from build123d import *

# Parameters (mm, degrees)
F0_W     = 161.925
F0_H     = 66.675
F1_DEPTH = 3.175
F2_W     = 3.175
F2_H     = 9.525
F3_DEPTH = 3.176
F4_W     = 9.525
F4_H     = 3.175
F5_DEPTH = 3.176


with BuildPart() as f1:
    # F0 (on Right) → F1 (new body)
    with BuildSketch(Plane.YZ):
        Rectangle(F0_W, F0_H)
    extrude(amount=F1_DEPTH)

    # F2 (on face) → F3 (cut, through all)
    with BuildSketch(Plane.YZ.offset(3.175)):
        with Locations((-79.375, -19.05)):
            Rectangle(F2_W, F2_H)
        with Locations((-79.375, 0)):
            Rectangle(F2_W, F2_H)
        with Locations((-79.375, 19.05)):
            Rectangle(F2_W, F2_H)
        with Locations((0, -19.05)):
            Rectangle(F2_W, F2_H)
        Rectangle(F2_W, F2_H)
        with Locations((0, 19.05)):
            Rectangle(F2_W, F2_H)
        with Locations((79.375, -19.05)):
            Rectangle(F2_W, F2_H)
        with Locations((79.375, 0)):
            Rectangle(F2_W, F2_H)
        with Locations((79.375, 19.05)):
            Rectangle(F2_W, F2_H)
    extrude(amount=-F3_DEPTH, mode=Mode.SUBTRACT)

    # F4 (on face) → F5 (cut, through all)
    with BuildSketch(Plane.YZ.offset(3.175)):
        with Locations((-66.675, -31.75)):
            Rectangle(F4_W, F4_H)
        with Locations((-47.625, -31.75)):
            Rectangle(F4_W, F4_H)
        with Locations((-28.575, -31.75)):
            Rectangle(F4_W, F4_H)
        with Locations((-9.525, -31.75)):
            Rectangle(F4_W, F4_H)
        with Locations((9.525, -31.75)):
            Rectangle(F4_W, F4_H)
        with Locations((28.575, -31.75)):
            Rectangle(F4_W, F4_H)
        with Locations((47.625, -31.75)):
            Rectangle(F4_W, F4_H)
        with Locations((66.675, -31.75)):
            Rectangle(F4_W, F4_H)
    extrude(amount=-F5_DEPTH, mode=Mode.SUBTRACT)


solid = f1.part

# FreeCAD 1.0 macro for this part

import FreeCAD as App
import Part
import Sketcher

V = App.Vector
Q = App.Units.Quantity

doc = App.newDocument("Part")
body = doc.addObject("PartDesign::Body", "Body")

# Sketch on YZ plane
sketch1 = body.newObject("Sketcher::SketchObject", "Sketch")
sketch1.AttachmentSupport = (doc.getObject("YZ_Plane"), [""])
sketch1.MapMode = "FlatFace"
sketch1.addGeometry([
    Part.LineSegment(V(-81, 33, 0), V(-81, -33, 0)),
    Part.LineSegment(V(-81, -33, 0), V(81, -33, 0)),
    Part.LineSegment(V(81, -33, 0), V(81, 33, 0)),
    Part.LineSegment(V(81, 33, 0), V(-81, 33, 0)),
], False)
sketch1.addConstraint([
    Sketcher.Constraint("Coincident", 0, 2, 1, 1),
    Sketcher.Constraint("Coincident", 1, 2, 2, 1),
    Sketcher.Constraint("Coincident", 2, 2, 3, 1),
    Sketcher.Constraint("Coincident", 3, 2, 0, 1),
    Sketcher.Constraint("Vertical", 0),
    Sketcher.Constraint("Horizontal", 1),
    Sketcher.Constraint("Vertical", 2),
    Sketcher.Constraint("Horizontal", 3),
    Sketcher.Constraint("Symmetric", 0, 2, 2, 2, -1, 1),
    Sketcher.Constraint("DistanceX", 1, 1, 1, 2, Q("6.375 in")),
    Sketcher.Constraint("DistanceY", 0, 2, 0, 1, Q("2.625 in")),
])
pad1 = body.newObject("PartDesign::Pad", "Pad")
pad1.Profile = sketch1
pad1.Length = Q("0.125 in")

# Sketch on YZ plane
sketch2 = body.newObject("Sketcher::SketchObject", "Sketch001")
sketch2.AttachmentSupport = (doc.getObject("YZ_Plane"), [""])
sketch2.MapMode = "FlatFace"
sketch2.AttachmentOffset = App.Placement(V(0, 0, 0.125 * 25.4), App.Rotation())
sketch2.addGeometry([
    Part.LineSegment(V(-81, -14.3, 0), V(-81, -23.8, 0)),  # 0
    Part.LineSegment(V(-81, -23.8, 0), V(-77.8, -23.8, 0)),  # 1
    Part.LineSegment(V(-77.8, -23.8, 0), V(-77.8, -14.3, 0)),  # 2
    Part.LineSegment(V(-77.8, -14.3, 0), V(-81, -14.3, 0)),  # 3
    Part.LineSegment(V(-81, 4.8, 0), V(-81, -4.8, 0)),  # 4
    Part.LineSegment(V(-81, -4.8, 0), V(-77.8, -4.8, 0)),  # 5
    Part.LineSegment(V(-77.8, -4.8, 0), V(-77.8, 4.8, 0)),  # 6
    Part.LineSegment(V(-77.8, 4.8, 0), V(-81, 4.8, 0)),  # 7
    Part.LineSegment(V(-81, 23.8, 0), V(-81, 14.3, 0)),  # 8
    Part.LineSegment(V(-81, 14.3, 0), V(-77.8, 14.3, 0)),  # 9
    Part.LineSegment(V(-77.8, 14.3, 0), V(-77.8, 23.8, 0)),  # 10
    Part.LineSegment(V(-77.8, 23.8, 0), V(-81, 23.8, 0)),  # 11
    Part.LineSegment(V(-1.6, -14.3, 0), V(-1.6, -23.8, 0)),  # 12
    Part.LineSegment(V(-1.6, -23.8, 0), V(1.6, -23.8, 0)),  # 13
    Part.LineSegment(V(1.6, -23.8, 0), V(1.6, -14.3, 0)),  # 14
    Part.LineSegment(V(1.6, -14.3, 0), V(-1.6, -14.3, 0)),  # 15
    Part.LineSegment(V(-1.6, 4.8, 0), V(-1.6, -4.8, 0)),  # 16
    Part.LineSegment(V(-1.6, -4.8, 0), V(1.6, -4.8, 0)),  # 17
    Part.LineSegment(V(1.6, -4.8, 0), V(1.6, 4.8, 0)),  # 18
    Part.LineSegment(V(1.6, 4.8, 0), V(-1.6, 4.8, 0)),  # 19
    Part.LineSegment(V(-1.6, 23.8, 0), V(-1.6, 14.3, 0)),  # 20
    Part.LineSegment(V(-1.6, 14.3, 0), V(1.6, 14.3, 0)),  # 21
    Part.LineSegment(V(1.6, 14.3, 0), V(1.6, 23.8, 0)),  # 22
    Part.LineSegment(V(1.6, 23.8, 0), V(-1.6, 23.8, 0)),  # 23
    Part.LineSegment(V(77.8, -14.3, 0), V(77.8, -23.8, 0)),  # 24
    Part.LineSegment(V(77.8, -23.8, 0), V(81, -23.8, 0)),  # 25
    Part.LineSegment(V(81, -23.8, 0), V(81, -14.3, 0)),  # 26
    Part.LineSegment(V(81, -14.3, 0), V(77.8, -14.3, 0)),  # 27
    Part.LineSegment(V(77.8, 4.8, 0), V(77.8, -4.8, 0)),  # 28
    Part.LineSegment(V(77.8, -4.8, 0), V(81, -4.8, 0)),  # 29
    Part.LineSegment(V(81, -4.8, 0), V(81, 4.8, 0)),  # 30
    Part.LineSegment(V(81, 4.8, 0), V(77.8, 4.8, 0)),  # 31
    Part.LineSegment(V(77.8, 23.8, 0), V(77.8, 14.3, 0)),  # 32
    Part.LineSegment(V(77.8, 14.3, 0), V(81, 14.3, 0)),  # 33
    Part.LineSegment(V(81, 14.3, 0), V(81, 23.8, 0)),  # 34
    Part.LineSegment(V(81, 23.8, 0), V(77.8, 23.8, 0)),  # 35
], False)
sketch2.addConstraint([
    Sketcher.Constraint("Coincident", 0, 2, 1, 1),
    Sketcher.Constraint("Coincident", 1, 2, 2, 1),
    Sketcher.Constraint("Coincident", 2, 2, 3, 1),
    Sketcher.Constraint("Coincident", 3, 2, 0, 1),
    Sketcher.Constraint("Coincident", 4, 2, 5, 1),
    Sketcher.Constraint("Coincident", 5, 2, 6, 1),
    Sketcher.Constraint("Coincident", 6, 2, 7, 1),
    Sketcher.Constraint("Coincident", 7, 2, 4, 1),
    Sketcher.Constraint("Coincident", 8, 2, 9, 1),
    Sketcher.Constraint("Coincident", 9, 2, 10, 1),
    Sketcher.Constraint("Coincident", 10, 2, 11, 1),
    Sketcher.Constraint("Coincident", 11, 2, 8, 1),
    Sketcher.Constraint("Coincident", 12, 2, 13, 1),
    Sketcher.Constraint("Coincident", 13, 2, 14, 1),
    Sketcher.Constraint("Coincident", 14, 2, 15, 1),
    Sketcher.Constraint("Coincident", 15, 2, 12, 1),
    Sketcher.Constraint("Coincident", 16, 2, 17, 1),
    Sketcher.Constraint("Coincident", 17, 2, 18, 1),
    Sketcher.Constraint("Coincident", 18, 2, 19, 1),
    Sketcher.Constraint("Coincident", 19, 2, 16, 1),
    Sketcher.Constraint("Coincident", 20, 2, 21, 1),
    Sketcher.Constraint("Coincident", 21, 2, 22, 1),
    Sketcher.Constraint("Coincident", 22, 2, 23, 1),
    Sketcher.Constraint("Coincident", 23, 2, 20, 1),
    Sketcher.Constraint("Coincident", 24, 2, 25, 1),
    Sketcher.Constraint("Coincident", 25, 2, 26, 1),
    Sketcher.Constraint("Coincident", 26, 2, 27, 1),
    Sketcher.Constraint("Coincident", 27, 2, 24, 1),
    Sketcher.Constraint("Coincident", 28, 2, 29, 1),
    Sketcher.Constraint("Coincident", 29, 2, 30, 1),
    Sketcher.Constraint("Coincident", 30, 2, 31, 1),
    Sketcher.Constraint("Coincident", 31, 2, 28, 1),
    Sketcher.Constraint("Coincident", 32, 2, 33, 1),
    Sketcher.Constraint("Coincident", 33, 2, 34, 1),
    Sketcher.Constraint("Coincident", 34, 2, 35, 1),
    Sketcher.Constraint("Coincident", 35, 2, 32, 1),
    Sketcher.Constraint("Vertical", 0),
    Sketcher.Constraint("Horizontal", 1),
    Sketcher.Constraint("Vertical", 2),
    Sketcher.Constraint("Horizontal", 3),
    Sketcher.Constraint("Vertical", 4),
    Sketcher.Constraint("Horizontal", 5),
    Sketcher.Constraint("Vertical", 6),
    Sketcher.Constraint("Horizontal", 7),
    Sketcher.Constraint("Vertical", 8),
    Sketcher.Constraint("Horizontal", 9),
    Sketcher.Constraint("Vertical", 10),
    Sketcher.Constraint("Horizontal", 11),
    Sketcher.Constraint("Vertical", 12),
    Sketcher.Constraint("Horizontal", 13),
    Sketcher.Constraint("Vertical", 14),
    Sketcher.Constraint("Horizontal", 15),
    Sketcher.Constraint("Vertical", 16),
    Sketcher.Constraint("Horizontal", 17),
    Sketcher.Constraint("Vertical", 18),
    Sketcher.Constraint("Horizontal", 19),
    Sketcher.Constraint("Vertical", 20),
    Sketcher.Constraint("Horizontal", 21),
    Sketcher.Constraint("Vertical", 22),
    Sketcher.Constraint("Horizontal", 23),
    Sketcher.Constraint("Vertical", 24),
    Sketcher.Constraint("Horizontal", 25),
    Sketcher.Constraint("Vertical", 26),
    Sketcher.Constraint("Horizontal", 27),
    Sketcher.Constraint("Vertical", 28),
    Sketcher.Constraint("Horizontal", 29),
    Sketcher.Constraint("Vertical", 30),
    Sketcher.Constraint("Horizontal", 31),
    Sketcher.Constraint("Vertical", 32),
    Sketcher.Constraint("Horizontal", 33),
    Sketcher.Constraint("Vertical", 34),
    Sketcher.Constraint("Horizontal", 35),
    Sketcher.Constraint("Symmetric", 16, 2, 18, 2, -1, 1),
    Sketcher.Constraint("Symmetric", 14, 2, 20, 2, -1, 1),
    Sketcher.Constraint("Symmetric", 12, 2, 22, 2, -1, 1),
    Sketcher.Constraint("Symmetric", 10, 2, 24, 2, -1, 1),
    Sketcher.Constraint("Symmetric", 8, 2, 26, 2, -1, 1),
    Sketcher.Constraint("Symmetric", 6, 2, 28, 2, -1, 1),
    Sketcher.Constraint("Symmetric", 4, 2, 30, 2, -1, 1),
    Sketcher.Constraint("Symmetric", 2, 2, 32, 2, -1, 1),
    Sketcher.Constraint("Symmetric", 0, 2, 34, 2, -1, 1),
    Sketcher.Constraint("Symmetric", 1, 2, 24, 2, -2),
    Sketcher.Constraint("Symmetric", 3, 2, 26, 2, -2),
    Sketcher.Constraint("Horizontal", 1, 2, 12, 2),
    Sketcher.Constraint("Horizontal", 3, 2, 14, 2),
    Sketcher.Constraint("Horizontal", 5, 2, 16, 2),
    Sketcher.Constraint("Horizontal", 7, 2, 18, 2),
    Sketcher.Constraint("Vertical", 3, 2, 4, 2),
    Sketcher.Constraint("Vertical", 2, 2, 5, 2),
    Sketcher.Constraint("Vertical", 15, 2, 16, 2),
    Sketcher.Constraint("Vertical", 14, 2, 17, 2),
    Sketcher.Constraint("Equal", 11, 13),
    Sketcher.Constraint("Equal", 2, 4),
    Sketcher.Constraint("DistanceX", 1, 2, 12, 2, Q("3 in")),
    Sketcher.Constraint("DistanceX", 1, 1, 1, 2, Q("0.125 in")),
    Sketcher.Constraint("DistanceY", 0, 2, 0, 1, Q("0.375 in")),
    Sketcher.Constraint("DistanceY", 0, 2, 4, 2, Q("0.75 in")),
])
pocket1 = body.newObject("PartDesign::Pocket", "Pocket")
pocket1.Profile = sketch2
pocket1.Type = "ThroughAll"

# Sketch on YZ plane
sketch3 = body.newObject("Sketcher::SketchObject", "Sketch002")
sketch3.AttachmentSupport = (doc.getObject("YZ_Plane"), [""])
sketch3.MapMode = "FlatFace"
sketch3.AttachmentOffset = App.Placement(V(0, 0, 0.125 * 25.4), App.Rotation())
sketch3.addGeometry([
    Part.LineSegment(V(-71.4, -30.2, 0), V(-71.4, -33.3, 0)),  # 0
    Part.LineSegment(V(-71.4, -33.3, 0), V(-61.9, -33.3, 0)),  # 1
    Part.LineSegment(V(-61.9, -33.3, 0), V(-61.9, -30.2, 0)),  # 2
    Part.LineSegment(V(-61.9, -30.2, 0), V(-71.4, -30.2, 0)),  # 3
    Part.LineSegment(V(-52.4, -30.2, 0), V(-52.4, -33.3, 0)),  # 4
    Part.LineSegment(V(-52.4, -33.3, 0), V(-42.9, -33.3, 0)),  # 5
    Part.LineSegment(V(-42.9, -33.3, 0), V(-42.9, -30.2, 0)),  # 6
    Part.LineSegment(V(-42.9, -30.2, 0), V(-52.4, -30.2, 0)),  # 7
    Part.LineSegment(V(-33.3, -30.2, 0), V(-33.3, -33.3, 0)),  # 8
    Part.LineSegment(V(-33.3, -33.3, 0), V(-23.8, -33.3, 0)),  # 9
    Part.LineSegment(V(-23.8, -33.3, 0), V(-23.8, -30.2, 0)),  # 10
    Part.LineSegment(V(-23.8, -30.2, 0), V(-33.3, -30.2, 0)),  # 11
    Part.LineSegment(V(-14.3, -30.2, 0), V(-14.3, -33.3, 0)),  # 12
    Part.LineSegment(V(-14.3, -33.3, 0), V(-4.8, -33.3, 0)),  # 13
    Part.LineSegment(V(-4.8, -33.3, 0), V(-4.8, -30.2, 0)),  # 14
    Part.LineSegment(V(-4.8, -30.2, 0), V(-14.3, -30.2, 0)),  # 15
    Part.LineSegment(V(4.8, -30.2, 0), V(4.8, -33.3, 0)),  # 16
    Part.LineSegment(V(4.8, -33.3, 0), V(14.3, -33.3, 0)),  # 17
    Part.LineSegment(V(14.3, -33.3, 0), V(14.3, -30.2, 0)),  # 18
    Part.LineSegment(V(14.3, -30.2, 0), V(4.8, -30.2, 0)),  # 19
    Part.LineSegment(V(23.8, -30.2, 0), V(23.8, -33.3, 0)),  # 20
    Part.LineSegment(V(23.8, -33.3, 0), V(33.3, -33.3, 0)),  # 21
    Part.LineSegment(V(33.3, -33.3, 0), V(33.3, -30.2, 0)),  # 22
    Part.LineSegment(V(33.3, -30.2, 0), V(23.8, -30.2, 0)),  # 23
    Part.LineSegment(V(42.9, -30.2, 0), V(42.9, -33.3, 0)),  # 24
    Part.LineSegment(V(42.9, -33.3, 0), V(52.4, -33.3, 0)),  # 25
    Part.LineSegment(V(52.4, -33.3, 0), V(52.4, -30.2, 0)),  # 26
    Part.LineSegment(V(52.4, -30.2, 0), V(42.9, -30.2, 0)),  # 27
    Part.LineSegment(V(61.9, -30.2, 0), V(61.9, -33.3, 0)),  # 28
    Part.LineSegment(V(61.9, -33.3, 0), V(71.4, -33.3, 0)),  # 29
    Part.LineSegment(V(71.4, -33.3, 0), V(71.4, -30.2, 0)),  # 30
    Part.LineSegment(V(71.4, -30.2, 0), V(61.9, -30.2, 0)),  # 31
], False)
sketch3.addConstraint([
    Sketcher.Constraint("Coincident", 0, 2, 1, 1),
    Sketcher.Constraint("Coincident", 1, 2, 2, 1),
    Sketcher.Constraint("Coincident", 2, 2, 3, 1),
    Sketcher.Constraint("Coincident", 3, 2, 0, 1),
    Sketcher.Constraint("Coincident", 4, 2, 5, 1),
    Sketcher.Constraint("Coincident", 5, 2, 6, 1),
    Sketcher.Constraint("Coincident", 6, 2, 7, 1),
    Sketcher.Constraint("Coincident", 7, 2, 4, 1),
    Sketcher.Constraint("Coincident", 8, 2, 9, 1),
    Sketcher.Constraint("Coincident", 9, 2, 10, 1),
    Sketcher.Constraint("Coincident", 10, 2, 11, 1),
    Sketcher.Constraint("Coincident", 11, 2, 8, 1),
    Sketcher.Constraint("Coincident", 12, 2, 13, 1),
    Sketcher.Constraint("Coincident", 13, 2, 14, 1),
    Sketcher.Constraint("Coincident", 14, 2, 15, 1),
    Sketcher.Constraint("Coincident", 15, 2, 12, 1),
    Sketcher.Constraint("Coincident", 16, 2, 17, 1),
    Sketcher.Constraint("Coincident", 17, 2, 18, 1),
    Sketcher.Constraint("Coincident", 18, 2, 19, 1),
    Sketcher.Constraint("Coincident", 19, 2, 16, 1),
    Sketcher.Constraint("Coincident", 20, 2, 21, 1),
    Sketcher.Constraint("Coincident", 21, 2, 22, 1),
    Sketcher.Constraint("Coincident", 22, 2, 23, 1),
    Sketcher.Constraint("Coincident", 23, 2, 20, 1),
    Sketcher.Constraint("Coincident", 24, 2, 25, 1),
    Sketcher.Constraint("Coincident", 25, 2, 26, 1),
    Sketcher.Constraint("Coincident", 26, 2, 27, 1),
    Sketcher.Constraint("Coincident", 27, 2, 24, 1),
    Sketcher.Constraint("Coincident", 28, 2, 29, 1),
    Sketcher.Constraint("Coincident", 29, 2, 30, 1),
    Sketcher.Constraint("Coincident", 30, 2, 31, 1),
    Sketcher.Constraint("Coincident", 31, 2, 28, 1),
    Sketcher.Constraint("Vertical", 0),
    Sketcher.Constraint("Horizontal", 1),
    Sketcher.Constraint("Vertical", 2),
    Sketcher.Constraint("Horizontal", 3),
    Sketcher.Constraint("Vertical", 4),
    Sketcher.Constraint("Horizontal", 5),
    Sketcher.Constraint("Vertical", 6),
    Sketcher.Constraint("Horizontal", 7),
    Sketcher.Constraint("Vertical", 8),
    Sketcher.Constraint("Horizontal", 9),
    Sketcher.Constraint("Vertical", 10),
    Sketcher.Constraint("Horizontal", 11),
    Sketcher.Constraint("Vertical", 12),
    Sketcher.Constraint("Horizontal", 13),
    Sketcher.Constraint("Vertical", 14),
    Sketcher.Constraint("Horizontal", 15),
    Sketcher.Constraint("Vertical", 16),
    Sketcher.Constraint("Horizontal", 17),
    Sketcher.Constraint("Vertical", 18),
    Sketcher.Constraint("Horizontal", 19),
    Sketcher.Constraint("Vertical", 20),
    Sketcher.Constraint("Horizontal", 21),
    Sketcher.Constraint("Vertical", 22),
    Sketcher.Constraint("Horizontal", 23),
    Sketcher.Constraint("Vertical", 24),
    Sketcher.Constraint("Horizontal", 25),
    Sketcher.Constraint("Vertical", 26),
    Sketcher.Constraint("Horizontal", 27),
    Sketcher.Constraint("Vertical", 28),
    Sketcher.Constraint("Horizontal", 29),
    Sketcher.Constraint("Vertical", 30),
    Sketcher.Constraint("Horizontal", 31),
    Sketcher.Constraint("Symmetric", 13, 2, 16, 2, -2),
    Sketcher.Constraint("Symmetric", 15, 2, 18, 2, -2),
    Sketcher.Constraint("Symmetric", 9, 2, 20, 2, -2),
    Sketcher.Constraint("Symmetric", 11, 2, 22, 2, -2),
    Sketcher.Constraint("Symmetric", 5, 2, 24, 2, -2),
    Sketcher.Constraint("Symmetric", 7, 2, 26, 2, -2),
    Sketcher.Constraint("Symmetric", 1, 2, 28, 2, -2),
    Sketcher.Constraint("Symmetric", 3, 2, 30, 2, -2),
    Sketcher.Constraint("Horizontal", 1, 2, 4, 2),
    Sketcher.Constraint("Horizontal", 3, 2, 6, 2),
    Sketcher.Constraint("Horizontal", 5, 2, 8, 2),
    Sketcher.Constraint("Horizontal", 7, 2, 10, 2),
    Sketcher.Constraint("Horizontal", 9, 2, 12, 2),
    Sketcher.Constraint("Horizontal", 11, 2, 14, 2),
    Sketcher.Constraint("Equal", 3, 5),
    Sketcher.Constraint("Equal", 7, 9),
    Sketcher.Constraint("Equal", 11, 13),
    Sketcher.Constraint("DistanceX", 1, 1, 1, 2, Q("0.375 in")),
    Sketcher.Constraint("DistanceY", 0, 2, 0, 1, Q("0.125 in")),
    Sketcher.Constraint("DistanceX", 0, 2, 4, 2, Q("0.75 in")),
    Sketcher.Constraint("DistanceX", 4, 2, 8, 2, Q("0.75 in")),
    Sketcher.Constraint("DistanceX", 8, 2, 12, 2, Q("0.75 in")),
    Sketcher.Constraint("DistanceX", 12, 2, 16, 2, Q("0.75 in")),
    Sketcher.Constraint("DistanceY", 0, 2, -1, 1, Q("1.3125 in")),
])
pocket2 = body.newObject("PartDesign::Pocket", "Pocket001")
pocket2.Profile = sketch3
pocket2.Type = "ThroughAll"

doc.recompute()
